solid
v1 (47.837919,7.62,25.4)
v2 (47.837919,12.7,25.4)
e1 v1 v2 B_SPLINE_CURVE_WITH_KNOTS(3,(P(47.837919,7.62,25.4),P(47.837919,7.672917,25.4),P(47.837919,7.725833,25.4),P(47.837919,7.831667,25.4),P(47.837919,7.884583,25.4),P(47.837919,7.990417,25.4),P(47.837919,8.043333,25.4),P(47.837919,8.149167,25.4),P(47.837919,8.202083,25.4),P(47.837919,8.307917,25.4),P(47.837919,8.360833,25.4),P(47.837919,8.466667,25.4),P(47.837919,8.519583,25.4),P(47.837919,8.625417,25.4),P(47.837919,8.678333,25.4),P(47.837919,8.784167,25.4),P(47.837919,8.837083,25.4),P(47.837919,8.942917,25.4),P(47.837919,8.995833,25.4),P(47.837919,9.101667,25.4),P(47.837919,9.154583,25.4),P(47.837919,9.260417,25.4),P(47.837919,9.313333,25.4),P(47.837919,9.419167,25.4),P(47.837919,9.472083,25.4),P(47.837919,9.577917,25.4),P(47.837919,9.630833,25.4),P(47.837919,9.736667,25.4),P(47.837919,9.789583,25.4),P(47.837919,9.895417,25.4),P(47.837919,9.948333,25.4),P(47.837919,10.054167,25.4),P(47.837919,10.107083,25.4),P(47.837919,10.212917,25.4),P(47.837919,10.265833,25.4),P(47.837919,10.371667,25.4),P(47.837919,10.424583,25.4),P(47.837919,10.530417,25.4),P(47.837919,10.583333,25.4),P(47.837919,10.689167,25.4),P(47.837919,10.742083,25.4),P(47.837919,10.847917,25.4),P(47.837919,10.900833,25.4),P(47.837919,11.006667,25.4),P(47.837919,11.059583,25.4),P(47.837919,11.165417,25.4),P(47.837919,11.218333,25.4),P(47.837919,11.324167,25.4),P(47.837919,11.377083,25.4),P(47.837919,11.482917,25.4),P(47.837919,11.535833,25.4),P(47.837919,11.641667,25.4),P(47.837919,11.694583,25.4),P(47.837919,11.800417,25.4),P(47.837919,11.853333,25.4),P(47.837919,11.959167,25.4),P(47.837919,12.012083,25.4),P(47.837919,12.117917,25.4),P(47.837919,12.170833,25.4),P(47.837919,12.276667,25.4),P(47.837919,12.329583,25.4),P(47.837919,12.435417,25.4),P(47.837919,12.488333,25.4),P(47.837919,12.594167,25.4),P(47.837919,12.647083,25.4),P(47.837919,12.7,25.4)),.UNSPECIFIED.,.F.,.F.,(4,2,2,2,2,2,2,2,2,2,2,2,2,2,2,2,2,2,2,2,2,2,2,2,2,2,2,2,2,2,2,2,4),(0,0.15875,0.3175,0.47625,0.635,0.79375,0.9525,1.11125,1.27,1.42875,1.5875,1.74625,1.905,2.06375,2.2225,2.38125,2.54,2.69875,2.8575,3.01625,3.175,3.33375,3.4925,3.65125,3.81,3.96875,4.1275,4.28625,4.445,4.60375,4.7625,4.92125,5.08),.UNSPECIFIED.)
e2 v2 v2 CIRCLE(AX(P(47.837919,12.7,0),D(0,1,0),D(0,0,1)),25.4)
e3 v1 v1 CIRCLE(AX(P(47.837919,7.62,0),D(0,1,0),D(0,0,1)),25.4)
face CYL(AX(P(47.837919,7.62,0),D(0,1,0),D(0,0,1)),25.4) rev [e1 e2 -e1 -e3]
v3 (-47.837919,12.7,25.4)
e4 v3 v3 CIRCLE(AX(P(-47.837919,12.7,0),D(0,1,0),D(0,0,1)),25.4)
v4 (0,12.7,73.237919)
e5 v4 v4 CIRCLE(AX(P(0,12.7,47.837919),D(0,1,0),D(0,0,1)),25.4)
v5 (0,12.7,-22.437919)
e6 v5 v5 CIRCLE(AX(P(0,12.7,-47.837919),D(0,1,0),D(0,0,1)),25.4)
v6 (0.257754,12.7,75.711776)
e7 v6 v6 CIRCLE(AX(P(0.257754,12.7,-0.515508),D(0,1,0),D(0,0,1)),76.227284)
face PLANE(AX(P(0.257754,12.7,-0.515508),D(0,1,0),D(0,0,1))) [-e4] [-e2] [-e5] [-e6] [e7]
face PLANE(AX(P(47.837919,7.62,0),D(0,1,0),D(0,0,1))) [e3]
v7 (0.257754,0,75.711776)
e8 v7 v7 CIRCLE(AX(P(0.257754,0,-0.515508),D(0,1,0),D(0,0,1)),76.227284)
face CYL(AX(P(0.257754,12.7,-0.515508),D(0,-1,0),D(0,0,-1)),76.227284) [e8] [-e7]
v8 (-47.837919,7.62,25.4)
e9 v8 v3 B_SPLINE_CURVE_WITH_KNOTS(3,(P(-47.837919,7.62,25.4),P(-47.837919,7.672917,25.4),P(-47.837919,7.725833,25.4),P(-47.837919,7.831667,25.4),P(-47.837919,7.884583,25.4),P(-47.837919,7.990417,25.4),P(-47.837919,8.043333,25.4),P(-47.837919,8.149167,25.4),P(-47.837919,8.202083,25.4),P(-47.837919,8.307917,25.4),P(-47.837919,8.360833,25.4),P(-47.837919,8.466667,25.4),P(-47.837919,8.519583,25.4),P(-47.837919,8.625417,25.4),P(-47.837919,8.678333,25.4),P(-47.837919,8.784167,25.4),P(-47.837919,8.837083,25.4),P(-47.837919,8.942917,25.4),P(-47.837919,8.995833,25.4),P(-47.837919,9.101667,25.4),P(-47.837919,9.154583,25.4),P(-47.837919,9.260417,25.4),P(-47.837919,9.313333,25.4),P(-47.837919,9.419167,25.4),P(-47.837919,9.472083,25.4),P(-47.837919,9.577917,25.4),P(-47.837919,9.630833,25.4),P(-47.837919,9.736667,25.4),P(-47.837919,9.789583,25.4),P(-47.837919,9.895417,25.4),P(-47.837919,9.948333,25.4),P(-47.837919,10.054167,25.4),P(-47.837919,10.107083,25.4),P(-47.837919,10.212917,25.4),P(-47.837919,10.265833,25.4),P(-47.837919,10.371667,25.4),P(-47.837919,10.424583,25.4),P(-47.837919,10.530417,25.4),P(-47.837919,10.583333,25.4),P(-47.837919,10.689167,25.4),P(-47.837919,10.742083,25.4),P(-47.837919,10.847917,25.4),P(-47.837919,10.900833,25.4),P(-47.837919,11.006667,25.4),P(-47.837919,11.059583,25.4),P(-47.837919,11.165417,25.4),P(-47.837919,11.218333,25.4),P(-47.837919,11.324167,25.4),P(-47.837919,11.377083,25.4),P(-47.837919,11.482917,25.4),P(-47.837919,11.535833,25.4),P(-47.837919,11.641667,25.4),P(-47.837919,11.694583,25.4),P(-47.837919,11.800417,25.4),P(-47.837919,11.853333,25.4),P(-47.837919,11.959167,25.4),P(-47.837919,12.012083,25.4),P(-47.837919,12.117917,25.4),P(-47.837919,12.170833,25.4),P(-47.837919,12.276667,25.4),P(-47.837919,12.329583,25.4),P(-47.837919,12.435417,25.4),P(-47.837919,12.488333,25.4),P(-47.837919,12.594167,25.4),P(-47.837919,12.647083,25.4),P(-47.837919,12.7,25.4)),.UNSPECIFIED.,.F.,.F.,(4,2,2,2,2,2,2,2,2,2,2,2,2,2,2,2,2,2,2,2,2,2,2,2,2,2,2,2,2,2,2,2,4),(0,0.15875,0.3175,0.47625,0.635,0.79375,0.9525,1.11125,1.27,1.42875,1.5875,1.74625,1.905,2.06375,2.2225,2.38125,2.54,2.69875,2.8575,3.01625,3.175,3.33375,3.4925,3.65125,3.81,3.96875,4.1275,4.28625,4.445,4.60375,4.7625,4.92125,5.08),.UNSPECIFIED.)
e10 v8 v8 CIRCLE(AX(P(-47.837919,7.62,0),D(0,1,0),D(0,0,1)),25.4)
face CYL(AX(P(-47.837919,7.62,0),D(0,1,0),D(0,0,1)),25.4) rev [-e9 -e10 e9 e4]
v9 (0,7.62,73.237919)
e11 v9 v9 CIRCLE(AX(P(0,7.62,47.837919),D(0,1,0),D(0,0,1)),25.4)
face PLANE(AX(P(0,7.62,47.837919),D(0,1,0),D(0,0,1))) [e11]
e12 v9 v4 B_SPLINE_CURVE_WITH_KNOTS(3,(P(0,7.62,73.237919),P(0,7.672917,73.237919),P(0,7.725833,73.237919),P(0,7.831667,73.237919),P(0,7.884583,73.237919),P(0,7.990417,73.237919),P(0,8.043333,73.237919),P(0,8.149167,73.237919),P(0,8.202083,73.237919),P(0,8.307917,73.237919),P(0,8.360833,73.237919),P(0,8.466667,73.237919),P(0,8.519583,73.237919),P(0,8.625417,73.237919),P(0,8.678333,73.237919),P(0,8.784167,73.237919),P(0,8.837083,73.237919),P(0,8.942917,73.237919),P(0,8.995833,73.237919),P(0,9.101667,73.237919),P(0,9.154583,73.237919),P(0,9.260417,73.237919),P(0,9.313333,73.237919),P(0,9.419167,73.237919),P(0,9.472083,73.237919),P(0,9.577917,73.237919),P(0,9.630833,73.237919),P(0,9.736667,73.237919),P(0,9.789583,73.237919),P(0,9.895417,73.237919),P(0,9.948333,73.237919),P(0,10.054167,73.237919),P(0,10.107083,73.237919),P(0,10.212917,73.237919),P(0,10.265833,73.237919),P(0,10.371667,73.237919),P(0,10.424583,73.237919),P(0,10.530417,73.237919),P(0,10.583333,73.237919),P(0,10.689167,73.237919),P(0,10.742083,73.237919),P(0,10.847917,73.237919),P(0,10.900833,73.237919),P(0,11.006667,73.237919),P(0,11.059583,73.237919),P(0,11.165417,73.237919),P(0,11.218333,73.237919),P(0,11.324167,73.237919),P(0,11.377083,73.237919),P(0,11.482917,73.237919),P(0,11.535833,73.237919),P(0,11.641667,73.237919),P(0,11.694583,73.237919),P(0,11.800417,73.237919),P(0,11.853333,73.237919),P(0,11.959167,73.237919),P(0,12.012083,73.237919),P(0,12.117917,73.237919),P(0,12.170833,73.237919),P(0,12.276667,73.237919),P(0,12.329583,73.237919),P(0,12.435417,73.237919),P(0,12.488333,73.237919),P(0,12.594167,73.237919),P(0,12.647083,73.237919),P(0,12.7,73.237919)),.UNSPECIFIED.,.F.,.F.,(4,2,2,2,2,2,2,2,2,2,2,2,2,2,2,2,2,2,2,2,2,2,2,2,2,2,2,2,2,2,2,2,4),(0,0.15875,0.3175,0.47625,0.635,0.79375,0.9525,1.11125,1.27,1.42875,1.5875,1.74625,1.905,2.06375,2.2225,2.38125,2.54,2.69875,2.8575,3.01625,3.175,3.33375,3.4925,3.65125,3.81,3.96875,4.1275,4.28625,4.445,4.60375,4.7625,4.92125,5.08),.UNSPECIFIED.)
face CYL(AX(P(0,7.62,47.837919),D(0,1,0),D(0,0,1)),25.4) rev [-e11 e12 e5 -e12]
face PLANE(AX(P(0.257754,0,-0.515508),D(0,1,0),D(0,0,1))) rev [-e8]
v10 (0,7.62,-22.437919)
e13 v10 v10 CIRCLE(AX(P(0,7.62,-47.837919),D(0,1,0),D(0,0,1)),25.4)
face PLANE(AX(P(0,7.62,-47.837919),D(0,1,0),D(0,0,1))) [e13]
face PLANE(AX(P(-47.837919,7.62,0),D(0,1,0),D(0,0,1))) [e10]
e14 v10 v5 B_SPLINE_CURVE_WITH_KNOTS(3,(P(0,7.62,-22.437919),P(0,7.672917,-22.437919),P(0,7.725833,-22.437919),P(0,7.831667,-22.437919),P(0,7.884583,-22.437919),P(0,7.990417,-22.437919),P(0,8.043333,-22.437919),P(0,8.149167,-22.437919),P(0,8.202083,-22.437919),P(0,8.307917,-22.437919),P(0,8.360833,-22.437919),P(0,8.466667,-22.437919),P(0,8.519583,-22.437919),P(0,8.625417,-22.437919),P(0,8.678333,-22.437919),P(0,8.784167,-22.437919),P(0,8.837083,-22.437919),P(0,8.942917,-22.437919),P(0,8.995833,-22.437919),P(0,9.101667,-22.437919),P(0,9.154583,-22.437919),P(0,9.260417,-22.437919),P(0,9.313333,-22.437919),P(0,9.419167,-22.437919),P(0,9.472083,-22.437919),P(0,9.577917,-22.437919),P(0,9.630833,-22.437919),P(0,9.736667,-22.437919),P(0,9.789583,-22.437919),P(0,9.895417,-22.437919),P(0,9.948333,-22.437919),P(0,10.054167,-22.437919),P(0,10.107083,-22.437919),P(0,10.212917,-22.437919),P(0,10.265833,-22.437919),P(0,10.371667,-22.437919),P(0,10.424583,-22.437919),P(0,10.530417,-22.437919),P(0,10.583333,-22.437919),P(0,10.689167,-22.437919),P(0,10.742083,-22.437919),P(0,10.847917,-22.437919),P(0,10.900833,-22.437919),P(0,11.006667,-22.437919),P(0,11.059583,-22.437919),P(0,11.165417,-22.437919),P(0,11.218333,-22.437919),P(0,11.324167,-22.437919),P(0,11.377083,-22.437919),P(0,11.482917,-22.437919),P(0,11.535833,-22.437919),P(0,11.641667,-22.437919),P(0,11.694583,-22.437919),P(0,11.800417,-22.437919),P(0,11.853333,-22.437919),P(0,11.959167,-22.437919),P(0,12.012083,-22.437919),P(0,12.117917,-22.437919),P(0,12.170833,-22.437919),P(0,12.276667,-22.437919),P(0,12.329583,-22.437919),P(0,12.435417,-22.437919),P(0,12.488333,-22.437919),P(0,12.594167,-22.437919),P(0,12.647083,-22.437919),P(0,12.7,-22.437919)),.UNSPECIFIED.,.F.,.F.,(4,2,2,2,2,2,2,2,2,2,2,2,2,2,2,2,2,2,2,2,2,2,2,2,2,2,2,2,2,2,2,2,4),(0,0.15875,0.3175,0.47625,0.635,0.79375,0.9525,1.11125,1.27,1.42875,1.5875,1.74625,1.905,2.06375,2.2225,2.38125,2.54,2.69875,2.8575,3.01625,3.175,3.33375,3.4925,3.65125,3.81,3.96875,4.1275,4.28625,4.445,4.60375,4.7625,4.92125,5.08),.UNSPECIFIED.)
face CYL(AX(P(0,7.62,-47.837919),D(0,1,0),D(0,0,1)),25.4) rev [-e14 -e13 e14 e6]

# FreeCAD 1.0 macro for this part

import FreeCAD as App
import Part
import Sketcher
Q = App.Units.Quantity

doc = App.newDocument("Part")
body = doc.addObject("PartDesign::Body", "Body")

# Sketch on XZ plane
sketch1 = body.newObject("Sketcher::SketchObject", "Sketch")
sketch1.AttachmentSupport = (doc.getObject("XZ_Plane"), [""])
sketch1.MapMode = "FlatFace"
sketch1.addGeometry(Part.Circle(App.Vector(0, -1, 0), App.Vector(0, 0, 1), 76), False)
sketch1.addConstraint(Sketcher.Constraint("Diameter", 0, 152.454569))
sketch1.addConstraint(Sketcher.Constraint("DistanceY", 0, 3, -1, 1, 0.515508))
sketch1.addConstraint(Sketcher.Constraint("DistanceX", -1, 1, 0, 3, 0.257754))
pad1 = body.newObject("PartDesign::Pad", "Pad")
pad1.Profile = sketch1
pad1.Length = Q("0.5 in")
pad1.Reversed = True

# Sketch on XZ plane
sketch2 = body.newObject("Sketcher::SketchObject", "Sketch001")
sketch2.AttachmentSupport = (doc.getObject("XZ_Plane"), [""])
sketch2.MapMode = "FlatFace"
sketch2.AttachmentOffset = App.Placement(App.Vector(0, 0, -0.5 * 25.4), App.Rotation())
sketch2.addGeometry(Part.Circle(App.Vector(-48, 0, 0), App.Vector(0, 0, 1), 25), False)
sketch2.addConstraint(Sketcher.Constraint("PointOnObject", 0, 3, -1))
sketch2.addConstraint(Sketcher.Constraint("Diameter", 0, Q("2 in")))
sketch2.addConstraint(Sketcher.Constraint("DistanceX", 0, 3, -1, 1, 47.837919))
pocket1 = body.newObject("PartDesign::Pocket", "Pocket")
pocket1.Profile = sketch2
pocket1.Length = Q("0.2 in")
pocket1.Reversed = True

# Sketch on XZ plane
sketch3 = body.newObject("Sketcher::SketchObject", "Sketch002")
sketch3.AttachmentSupport = (doc.getObject("XZ_Plane"), [""])
sketch3.MapMode = "FlatFace"
sketch3.AttachmentOffset = App.Placement(App.Vector(0, 0, -0.5 * 25.4), App.Rotation())
sketch3.addGeometry(Part.Circle(App.Vector(0, -48, 0), App.Vector(0, 0, 1), 25), False)
sketch3.addGeometry(Part.Circle(App.Vector(48, 0, 0), App.Vector(0, 0, 1), 25), False)
sketch3.addGeometry(Part.Circle(App.Vector(0, 48, 0), App.Vector(0, 0, 1), 25), False)
sketch3.addConstraint(Sketcher.Constraint("Equal", 0, 1))
sketch3.addConstraint(Sketcher.Constraint("Equal", 1, 2))
sketch3.addConstraint(Sketcher.Constraint("Symmetric", 0, 3, 2, 3, -1, 1))
sketch3.addConstraint(Sketcher.Constraint("PointOnObject", 0, 3, -2))
sketch3.addConstraint(Sketcher.Constraint("PointOnObject", 1, 3, -1))
sketch3.addConstraint(Sketcher.Constraint("Diameter", 0, Q("2 in")))
sketch3.addConstraint(Sketcher.Constraint("DistanceY", 0, 3, -1, 1, 47.837919))
sketch3.addConstraint(Sketcher.Constraint("DistanceX", -1, 1, 1, 3, 47.837919))
pocket2 = body.newObject("PartDesign::Pocket", "Pocket001")
pocket2.Profile = sketch3
pocket2.Length = Q("0.2 in")
pocket2.Reversed = True

doc.recompute()
